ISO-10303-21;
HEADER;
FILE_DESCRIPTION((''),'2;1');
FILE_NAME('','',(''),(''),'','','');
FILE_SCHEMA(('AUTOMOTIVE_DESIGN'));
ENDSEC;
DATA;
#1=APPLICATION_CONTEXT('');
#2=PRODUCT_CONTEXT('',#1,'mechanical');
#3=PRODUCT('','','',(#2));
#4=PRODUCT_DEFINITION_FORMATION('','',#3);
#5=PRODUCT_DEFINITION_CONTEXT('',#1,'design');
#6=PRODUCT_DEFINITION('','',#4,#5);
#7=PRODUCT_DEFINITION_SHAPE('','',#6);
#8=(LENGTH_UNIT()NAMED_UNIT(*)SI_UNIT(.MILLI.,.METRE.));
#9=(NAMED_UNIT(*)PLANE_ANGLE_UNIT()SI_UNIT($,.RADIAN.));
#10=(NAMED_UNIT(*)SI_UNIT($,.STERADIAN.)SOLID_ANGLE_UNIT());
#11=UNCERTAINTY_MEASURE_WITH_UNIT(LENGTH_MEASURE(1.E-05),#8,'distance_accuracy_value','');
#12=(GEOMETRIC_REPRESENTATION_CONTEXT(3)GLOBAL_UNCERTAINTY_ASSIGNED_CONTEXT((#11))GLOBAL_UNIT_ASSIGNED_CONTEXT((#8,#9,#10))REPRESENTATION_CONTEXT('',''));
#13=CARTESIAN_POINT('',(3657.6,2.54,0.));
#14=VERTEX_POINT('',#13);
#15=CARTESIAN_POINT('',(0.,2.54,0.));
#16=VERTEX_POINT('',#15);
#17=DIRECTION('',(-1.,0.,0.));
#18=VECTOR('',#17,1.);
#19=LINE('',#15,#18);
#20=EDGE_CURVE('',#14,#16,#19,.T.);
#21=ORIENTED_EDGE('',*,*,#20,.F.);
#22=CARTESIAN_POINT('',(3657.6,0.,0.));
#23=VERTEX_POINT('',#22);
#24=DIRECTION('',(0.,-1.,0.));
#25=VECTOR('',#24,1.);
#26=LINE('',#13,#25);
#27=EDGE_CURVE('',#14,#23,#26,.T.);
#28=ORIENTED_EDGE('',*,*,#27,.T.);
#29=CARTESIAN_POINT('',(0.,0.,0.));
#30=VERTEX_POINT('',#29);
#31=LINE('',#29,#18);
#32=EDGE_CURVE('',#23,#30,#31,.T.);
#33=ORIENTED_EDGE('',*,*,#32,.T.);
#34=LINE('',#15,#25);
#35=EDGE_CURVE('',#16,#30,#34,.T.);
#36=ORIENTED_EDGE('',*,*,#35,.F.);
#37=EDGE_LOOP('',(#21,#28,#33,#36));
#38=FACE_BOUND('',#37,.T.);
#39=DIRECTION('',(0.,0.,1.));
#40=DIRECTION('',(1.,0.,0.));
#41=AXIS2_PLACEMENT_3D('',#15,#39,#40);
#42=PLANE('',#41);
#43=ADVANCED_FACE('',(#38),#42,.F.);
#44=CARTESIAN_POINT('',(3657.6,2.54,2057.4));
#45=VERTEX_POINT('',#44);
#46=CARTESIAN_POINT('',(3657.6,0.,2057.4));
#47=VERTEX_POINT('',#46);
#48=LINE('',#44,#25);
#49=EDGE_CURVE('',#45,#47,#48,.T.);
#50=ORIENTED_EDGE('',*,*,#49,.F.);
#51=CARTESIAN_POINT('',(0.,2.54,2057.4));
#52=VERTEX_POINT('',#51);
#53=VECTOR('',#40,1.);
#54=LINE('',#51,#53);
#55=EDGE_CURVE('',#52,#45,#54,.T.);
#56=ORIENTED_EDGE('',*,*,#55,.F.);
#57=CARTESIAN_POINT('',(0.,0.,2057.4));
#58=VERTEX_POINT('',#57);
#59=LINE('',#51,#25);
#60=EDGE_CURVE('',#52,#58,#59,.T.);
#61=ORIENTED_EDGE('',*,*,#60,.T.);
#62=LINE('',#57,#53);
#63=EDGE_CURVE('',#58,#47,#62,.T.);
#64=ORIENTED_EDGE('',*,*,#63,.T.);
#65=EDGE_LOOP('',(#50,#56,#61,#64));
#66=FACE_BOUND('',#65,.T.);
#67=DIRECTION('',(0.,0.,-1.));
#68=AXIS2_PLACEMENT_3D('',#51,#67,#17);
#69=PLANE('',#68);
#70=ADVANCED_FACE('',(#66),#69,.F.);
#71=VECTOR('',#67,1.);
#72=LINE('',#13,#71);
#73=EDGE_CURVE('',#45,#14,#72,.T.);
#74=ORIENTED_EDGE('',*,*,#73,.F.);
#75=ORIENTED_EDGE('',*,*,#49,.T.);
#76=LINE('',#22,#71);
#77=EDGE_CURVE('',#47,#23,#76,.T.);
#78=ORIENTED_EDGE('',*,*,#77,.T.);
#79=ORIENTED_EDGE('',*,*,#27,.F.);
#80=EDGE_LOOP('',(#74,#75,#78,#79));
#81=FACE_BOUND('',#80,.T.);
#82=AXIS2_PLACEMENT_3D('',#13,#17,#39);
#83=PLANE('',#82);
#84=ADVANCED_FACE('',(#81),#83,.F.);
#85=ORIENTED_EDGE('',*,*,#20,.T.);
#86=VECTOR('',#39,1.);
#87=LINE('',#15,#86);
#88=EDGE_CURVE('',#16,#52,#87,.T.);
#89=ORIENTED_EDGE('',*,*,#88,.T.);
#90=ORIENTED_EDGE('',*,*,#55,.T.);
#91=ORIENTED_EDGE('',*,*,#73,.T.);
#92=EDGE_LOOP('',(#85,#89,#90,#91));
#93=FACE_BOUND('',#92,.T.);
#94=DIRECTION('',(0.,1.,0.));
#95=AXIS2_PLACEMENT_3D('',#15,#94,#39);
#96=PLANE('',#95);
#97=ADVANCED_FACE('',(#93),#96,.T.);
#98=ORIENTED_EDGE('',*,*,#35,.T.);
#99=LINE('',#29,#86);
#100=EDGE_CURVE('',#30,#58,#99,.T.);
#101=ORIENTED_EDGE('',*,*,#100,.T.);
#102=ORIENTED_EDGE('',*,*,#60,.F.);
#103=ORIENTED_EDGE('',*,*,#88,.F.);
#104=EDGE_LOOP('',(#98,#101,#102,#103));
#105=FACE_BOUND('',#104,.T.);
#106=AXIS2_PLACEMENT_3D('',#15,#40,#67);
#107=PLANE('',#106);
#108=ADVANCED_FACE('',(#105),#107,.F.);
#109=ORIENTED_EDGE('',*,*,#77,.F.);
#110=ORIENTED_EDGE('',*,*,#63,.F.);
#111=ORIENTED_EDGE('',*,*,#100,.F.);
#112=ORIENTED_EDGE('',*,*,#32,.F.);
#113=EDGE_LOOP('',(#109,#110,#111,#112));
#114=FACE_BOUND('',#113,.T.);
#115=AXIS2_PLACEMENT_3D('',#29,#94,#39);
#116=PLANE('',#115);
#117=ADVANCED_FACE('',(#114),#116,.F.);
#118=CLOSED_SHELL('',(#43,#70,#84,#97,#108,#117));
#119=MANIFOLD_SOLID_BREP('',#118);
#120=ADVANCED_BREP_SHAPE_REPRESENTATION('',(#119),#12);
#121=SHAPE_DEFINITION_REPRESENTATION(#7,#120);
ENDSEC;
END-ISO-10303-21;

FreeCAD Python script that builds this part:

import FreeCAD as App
import Part
import Sketcher

V = App.Vector
Q = App.Units.Quantity


def add_polygon(sketch, points):
    """Adds a closed chain of lines whose ends are joined by coincident constraints."""
    first, n = sketch.GeometryCount, len(points)
    for a, b in zip(points, points[1:] + points[:1]):
        sketch.addGeometry(Part.LineSegment(App.Vector(*a, 0), App.Vector(*b, 0)), False)
    for i in range(n):
        sketch.addConstraint(Sketcher.Constraint("Coincident", first + i, 2, first + (i + 1) % n, 1))

doc = App.newDocument("Part")
body = doc.addObject("PartDesign::Body", "Body")

# Sketch on XZ plane
sketch1 = doc.addObject("Sketcher::SketchObject", "Sketch")
body.addObject(sketch1)
sketch1.AttachmentSupport = (doc.XZ_Plane, [""])
sketch1.MapMode = "FlatFace"
add_polygon(sketch1, [(0, 0), (0, 2057.4), (3657.6, 2057.4), (3657.6, 0)])  # lines 0-3
sketch1.addConstraint([
    Sketcher.Constraint("Vertical", 0),
    Sketcher.Constraint("Horizontal", 1),
    Sketcher.Constraint("Vertical", 2),
    Sketcher.Constraint("Horizontal", 3),
    Sketcher.Constraint("Coincident", 3, 2, -1, 1),
    Sketcher.Constraint("DistanceX", 1, 1, 1, 2, Q("144 in")),
    Sketcher.Constraint("DistanceY", 0, 1, 0, 2, Q("81 in")),
])
pad1 = doc.addObject("PartDesign::Pad", "Pad")
body.addObject(pad1)
pad1.Profile = sketch1
pad1.Length = Q("0.1 in")
pad1.Reversed = True

doc.recompute()
